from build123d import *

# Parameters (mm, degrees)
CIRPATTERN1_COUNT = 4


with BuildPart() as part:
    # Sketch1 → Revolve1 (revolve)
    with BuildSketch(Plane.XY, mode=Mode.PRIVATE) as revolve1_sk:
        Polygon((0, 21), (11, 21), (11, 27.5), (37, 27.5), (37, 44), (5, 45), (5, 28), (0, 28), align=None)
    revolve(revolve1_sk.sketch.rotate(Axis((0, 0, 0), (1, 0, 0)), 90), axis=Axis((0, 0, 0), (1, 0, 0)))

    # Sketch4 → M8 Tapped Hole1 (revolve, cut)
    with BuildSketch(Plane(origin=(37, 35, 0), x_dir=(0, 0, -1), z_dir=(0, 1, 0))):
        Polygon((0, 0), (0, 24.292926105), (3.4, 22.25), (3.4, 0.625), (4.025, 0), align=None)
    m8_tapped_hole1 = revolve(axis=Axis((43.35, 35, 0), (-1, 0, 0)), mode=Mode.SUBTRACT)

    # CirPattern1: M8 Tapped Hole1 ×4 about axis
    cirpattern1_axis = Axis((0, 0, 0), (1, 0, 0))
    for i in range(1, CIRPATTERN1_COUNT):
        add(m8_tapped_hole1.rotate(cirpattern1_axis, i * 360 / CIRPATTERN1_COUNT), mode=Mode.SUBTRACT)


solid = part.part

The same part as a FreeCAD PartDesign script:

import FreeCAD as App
import Part
import Sketcher
Q = App.Units.Quantity

doc = App.newDocument("Part")
body = doc.addObject("PartDesign::Body", "Body")

# Sketch on XY plane
sketch1 = doc.addObject("Sketcher::SketchObject", "Sketch")
body.addObject(sketch1)
sketch1.AttachmentSupport = (doc.XY_Plane, [""])
sketch1.MapMode = "FlatFace"
sketch1.addGeometry(Part.LineSegment(App.Vector(0, 21, 0), App.Vector(11, 21, 0)), False)
sketch1.addGeometry(Part.LineSegment(App.Vector(11, 21, 0), App.Vector(11, 28, 0)), False)
sketch1.addGeometry(Part.LineSegment(App.Vector(11, 28, 0), App.Vector(37, 28, 0)), False)
sketch1.addGeometry(Part.LineSegment(App.Vector(37, 28, 0), App.Vector(37, 44, 0)), False)
sketch1.addGeometry(Part.LineSegment(App.Vector(37, 44, 0), App.Vector(5, 45, 0)), False)
sketch1.addGeometry(Part.LineSegment(App.Vector(5, 45, 0), App.Vector(5, 28, 0)), False)
sketch1.addGeometry(Part.LineSegment(App.Vector(5, 28, 0), App.Vector(0, 28, 0)), False)
sketch1.addGeometry(Part.LineSegment(App.Vector(0, 28, 0), App.Vector(0, 21, 0)), False)
sketch1.addConstraint(Sketcher.Constraint("Coincident", 0, 2, 1, 1))
sketch1.addConstraint(Sketcher.Constraint("Coincident", 1, 2, 2, 1))
sketch1.addConstraint(Sketcher.Constraint("Coincident", 2, 2, 3, 1))
sketch1.addConstraint(Sketcher.Constraint("Coincident", 3, 2, 4, 1))
sketch1.addConstraint(Sketcher.Constraint("Coincident", 4, 2, 5, 1))
sketch1.addConstraint(Sketcher.Constraint("Coincident", 5, 2, 6, 1))
sketch1.addConstraint(Sketcher.Constraint("Coincident", 6, 2, 7, 1))
sketch1.addConstraint(Sketcher.Constraint("Coincident", 7, 2, 0, 1))
sketch1.addConstraint(Sketcher.Constraint("Horizontal", 0))
sketch1.addConstraint(Sketcher.Constraint("Vertical", 1))
sketch1.addConstraint(Sketcher.Constraint("Horizontal", 2))
sketch1.addConstraint(Sketcher.Constraint("Vertical", 3))
sketch1.addConstraint(Sketcher.Constraint("Vertical", 5))
sketch1.addConstraint(Sketcher.Constraint("Horizontal", 6))
sketch1.addConstraint(Sketcher.Constraint("Vertical", 7))
sketch1.addConstraint(Sketcher.Constraint("PointOnObject", 6, 2, -2))
sketch1.addConstraint(Sketcher.Constraint("DistanceX", 0, 1, 0, 2, Q("11 mm")))
sketch1.addConstraint(Sketcher.Constraint("DistanceX", 2, 1, 2, 2, Q("26 mm")))
sketch1.addConstraint(Sketcher.Constraint("DistanceX", 6, 2, 6, 1, Q("5 mm")))
sketch1.addConstraint(Sketcher.Constraint("DistanceY", 5, 2, 5, 1, Q("17 mm")))
sketch1.addConstraint(Sketcher.Constraint("DistanceY", 7, 2, 7, 1, Q("7 mm")))
sketch1.addConstraint(Sketcher.Constraint("DistanceY", 1, 1, 1, 2, Q("6.5 mm")))
sketch1.addConstraint(Sketcher.Constraint("DistanceY", 3, 1, 3, 2, Q("16.5 mm")))
sketch1.addConstraint(Sketcher.Constraint("DistanceY", -1, 1, 0, 2, Q("21 mm")))
revolution = doc.addObject("PartDesign::Revolution", "Revolution")
body.addObject(revolution)
revolution.Profile = sketch1
revolution.ReferenceAxis = (sketch1, ["H_Axis"])
revolution.Angle = 360

# Sketch on XZ plane
sketch2 = doc.addObject("Sketcher::SketchObject", "Sketch001")
body.addObject(sketch2)
sketch2.AttachmentSupport = (doc.XZ_Plane, [""])
sketch2.MapMode = "FlatFace"
sketch2.AttachmentOffset = App.Placement(App.Vector(0, 0, -35), App.Rotation())
sketch2.addGeometry(Part.LineSegment(App.Vector(12.7, 0, 0), App.Vector(37, 0, 0)), False)
sketch2.addGeometry(Part.LineSegment(App.Vector(37, 0, 0), App.Vector(37, -4, 0)), False)
sketch2.addGeometry(Part.LineSegment(App.Vector(37, -4, 0), App.Vector(36.4, -3.4, 0)), False)
sketch2.addGeometry(Part.LineSegment(App.Vector(36.4, -3.4, 0), App.Vector(14.8, -3.4, 0)), False)
sketch2.addGeometry(Part.LineSegment(App.Vector(14.8, -3.4, 0), App.Vector(12.7, 0, 0)), False)
sketch2.addConstraint(Sketcher.Constraint("Coincident", 0, 2, 1, 1))
sketch2.addConstraint(Sketcher.Constraint("Coincident", 1, 2, 2, 1))
sketch2.addConstraint(Sketcher.Constraint("Coincident", 2, 2, 3, 1))
sketch2.addConstraint(Sketcher.Constraint("Coincident", 3, 2, 4, 1))
sketch2.addConstraint(Sketcher.Constraint("Coincident", 4, 2, 0, 1))
sketch2.addConstraint(Sketcher.Constraint("Horizontal", 0))
sketch2.addConstraint(Sketcher.Constraint("Vertical", 1))
sketch2.addConstraint(Sketcher.Constraint("Horizontal", 3))
sketch2.addConstraint(Sketcher.Constraint("PointOnObject", 0, 2, -1))
sketch2.addConstraint(Sketcher.Constraint("Angle", 2, Q("135 deg")))
sketch2.addConstraint(Sketcher.Constraint("Angle", 4, Q("121 deg")))
sketch2.addConstraint(Sketcher.Constraint("DistanceX", -1, 1, 0, 2, Q("37 mm")))
sketch2.addConstraint(Sketcher.Constraint("DistanceY", 2, 2, -1, 1, Q("3.4 mm")))
sketch2.addConstraint(Sketcher.Constraint("DistanceX", 3, 2, 3, 1, Q("21.625 mm")))
sketch2.addConstraint(Sketcher.Constraint("DistanceY", 1, 2, 1, 1, Q("4.025 mm")))
groove = doc.addObject("PartDesign::Groove", "Groove")
body.addObject(groove)
groove.Profile = sketch2
groove.ReferenceAxis = (sketch2, ["H_Axis"])
groove.Angle = 360
doc.recompute()

polarpattern = doc.addObject("PartDesign::PolarPattern", "PolarPattern")
body.addObject(polarpattern)
polarpattern.Originals = [groove]
polarpattern.Axis = (doc.X_Axis, [""])
polarpattern.Angle = 360
polarpattern.Occurrences = 4
body.Tip = polarpattern

doc.recompute()
